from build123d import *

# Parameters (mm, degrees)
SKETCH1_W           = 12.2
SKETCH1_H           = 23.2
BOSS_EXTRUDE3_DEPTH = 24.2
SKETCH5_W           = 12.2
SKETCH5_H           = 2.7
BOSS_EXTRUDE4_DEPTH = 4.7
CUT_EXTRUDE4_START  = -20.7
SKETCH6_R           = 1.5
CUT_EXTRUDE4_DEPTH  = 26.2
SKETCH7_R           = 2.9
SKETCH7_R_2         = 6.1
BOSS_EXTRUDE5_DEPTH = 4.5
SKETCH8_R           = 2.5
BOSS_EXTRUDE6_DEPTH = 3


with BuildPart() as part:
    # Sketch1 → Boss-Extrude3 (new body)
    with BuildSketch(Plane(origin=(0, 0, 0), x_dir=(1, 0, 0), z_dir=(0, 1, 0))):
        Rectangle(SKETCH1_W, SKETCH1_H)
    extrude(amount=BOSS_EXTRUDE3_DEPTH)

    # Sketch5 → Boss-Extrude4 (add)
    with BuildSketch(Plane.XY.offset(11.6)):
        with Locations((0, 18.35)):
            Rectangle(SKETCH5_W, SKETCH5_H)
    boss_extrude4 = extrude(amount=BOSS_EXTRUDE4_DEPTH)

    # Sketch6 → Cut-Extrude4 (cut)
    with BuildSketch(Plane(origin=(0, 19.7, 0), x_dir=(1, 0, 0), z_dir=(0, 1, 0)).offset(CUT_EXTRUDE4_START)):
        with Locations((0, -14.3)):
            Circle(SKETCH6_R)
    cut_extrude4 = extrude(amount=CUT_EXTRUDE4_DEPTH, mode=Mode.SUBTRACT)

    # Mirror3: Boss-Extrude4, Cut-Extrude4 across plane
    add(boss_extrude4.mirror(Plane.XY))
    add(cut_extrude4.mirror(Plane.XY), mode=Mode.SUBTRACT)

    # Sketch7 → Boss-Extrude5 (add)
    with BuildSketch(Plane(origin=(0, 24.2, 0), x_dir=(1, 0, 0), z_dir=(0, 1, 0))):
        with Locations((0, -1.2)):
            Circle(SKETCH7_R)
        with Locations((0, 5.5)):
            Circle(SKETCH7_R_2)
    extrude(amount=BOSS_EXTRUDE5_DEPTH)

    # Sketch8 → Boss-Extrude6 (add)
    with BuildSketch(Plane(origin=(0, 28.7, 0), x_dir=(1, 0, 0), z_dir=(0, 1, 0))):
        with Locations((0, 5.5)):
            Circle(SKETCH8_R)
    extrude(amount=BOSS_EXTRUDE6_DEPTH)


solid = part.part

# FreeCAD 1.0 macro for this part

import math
import FreeCAD as App
import Part
import Sketcher
Q = App.Units.Quantity


def add_polygon(sketch, points):
    """Adds a closed chain of lines whose ends are joined by coincident constraints."""
    first, n = sketch.GeometryCount, len(points)
    for a, b in zip(points, points[1:] + points[:1]):
        sketch.addGeometry(Part.LineSegment(App.Vector(*a, 0), App.Vector(*b, 0)), False)
    for i in range(n):
        sketch.addConstraint(Sketcher.Constraint("Coincident", first + i, 2, first + (i + 1) % n, 1))

doc = App.newDocument("Part")
body = doc.addObject("PartDesign::Body", "Body")

sketch1 = body.newObject("Sketcher::SketchObject", "Sketch")
sketch1.AttachmentSupport = (doc.getObject("XZ_Plane"), [""])
sketch1.MapMode = "FlatFace"
add_polygon(sketch1, [(-6, -12), (-6, 12), (6, 12), (6, -12)])
sketch1.addConstraint([
    Sketcher.Constraint("Vertical", 0),
    Sketcher.Constraint("Horizontal", 1),
    Sketcher.Constraint("Vertical", 2),
    Sketcher.Constraint("Horizontal", 3),
    Sketcher.Constraint("Symmetric", 0, 2, 2, 2, -1, 1),
    Sketcher.Constraint("DistanceX", 1, 1, 1, 2, Q("12.2 mm")),
    Sketcher.Constraint("DistanceY", 0, 1, 0, 2, Q("23.2 mm")),
])
pad1 = body.newObject("PartDesign::Pad", "Pad")
pad1.Profile = sketch1
pad1.Length = 24.2
pad1.Reversed = True

sketch2 = body.newObject("Sketcher::SketchObject", "Sketch001")
sketch2.AttachmentSupport = (doc.getObject("XY_Plane"), [""])
sketch2.MapMode = "FlatFace"
sketch2.AttachmentOffset = App.Placement(App.Vector(0, 0, 11.6), App.Rotation())
add_polygon(sketch2, [(-6.1, 19.7), (-6.1, 17), (6.1, 17), (6.1, 19.7)])
sketch2.addConstraint([
    Sketcher.Constraint("Vertical", 0),
    Sketcher.Constraint("Horizontal", 1),
    Sketcher.Constraint("Vertical", 2),
    Sketcher.Constraint("Horizontal", 3),
    Sketcher.Constraint("DistanceX", 1, 1, 1, 2, Q("12.2 mm")),
    Sketcher.Constraint("DistanceY", 0, 2, 0, 1, Q("2.7 mm")),
    Sketcher.Constraint("DistanceY", -1, 1, 0, 2, Q("17 mm")),
    Sketcher.Constraint("DistanceX", 0, 2, -1, 1, Q("6.1 mm")),
])
pad2 = body.newObject("PartDesign::Pad", "Pad001")
pad2.Profile = sketch2
pad2.Length = 4.7

sketch3 = body.newObject("Sketcher::SketchObject", "Sketch002")
sketch3.AttachmentSupport = (doc.getObject("XZ_Plane"), [""])
sketch3.MapMode = "FlatFace"
sketch3.AttachmentOffset = App.Placement(App.Vector(0, 0, 1), App.Rotation())
sketch3.addGeometry(Part.Circle(App.Vector(0, 14.3, 0), App.Vector(0, 0, 1), 1.5), False)
sketch3.addConstraint([
    Sketcher.Constraint("PointOnObject", 0, 3, -2),
    Sketcher.Constraint("Diameter", 0, Q("3 mm")),
    Sketcher.Constraint("DistanceY", -1, 1, 0, 3, Q("14.3 mm")),
])
pocket1 = body.newObject("PartDesign::Pocket", "Pocket")
pocket1.Profile = sketch3
pocket1.Length = 26.2
doc.recompute()

mirrored = body.newObject("PartDesign::Mirrored", "Mirrored")
mirrored.Originals = [pad2, pocket1]
mirrored.MirrorPlane = (doc.getObject("XY_Plane"), [""])
body.Tip = mirrored

sketch4 = body.newObject("Sketcher::SketchObject", "Sketch003")
sketch4.AttachmentSupport = (doc.getObject("XZ_Plane"), [""])
sketch4.MapMode = "FlatFace"
sketch4.AttachmentOffset = App.Placement(App.Vector(0, 0, -24.2), App.Rotation())
sketch4.addGeometry([
    Part.ArcOfCircle(Part.Circle(App.Vector(0, -5.5, 0), App.Vector(0, 0, 1), 6.1), math.radians(116), math.radians(424)),
    Part.ArcOfCircle(Part.Circle(App.Vector(0, 1.2, 0), App.Vector(0, 0, 1), 2.9), math.radians(-24), math.radians(204)),
], False)
sketch4.addConstraint([
    Sketcher.Constraint("Coincident", 0, 1, 1, 2),
    Sketcher.Constraint("Coincident", 1, 1, 0, 2),
    Sketcher.Constraint("Symmetric", 0, 1, 1, 1, -2),
    Sketcher.Constraint("Radius", 0, Q("6.1 mm")),
    Sketcher.Constraint("Radius", 1, Q("2.9 mm")),
    Sketcher.Constraint("DistanceY", 0, 3, -1, 1, Q("5.5 mm")),
    Sketcher.Constraint("DistanceY", -1, 1, 1, 3, Q("1.2 mm")),
])
pad3 = body.newObject("PartDesign::Pad", "Pad002")
pad3.Profile = sketch4
pad3.Length = 4.5
pad3.Reversed = True

sketch5 = body.newObject("Sketcher::SketchObject", "Sketch004")
sketch5.AttachmentSupport = (doc.getObject("XZ_Plane"), [""])
sketch5.MapMode = "FlatFace"
sketch5.AttachmentOffset = App.Placement(App.Vector(0, 0, -28.7), App.Rotation())
sketch5.addGeometry(Part.Circle(App.Vector(0, -5.5, 0), App.Vector(0, 0, 1), 2.5), False)
sketch5.addConstraint([
    Sketcher.Constraint("PointOnObject", 0, 3, -2),
    Sketcher.Constraint("Diameter", 0, Q("5 mm")),
    Sketcher.Constraint("DistanceY", 0, 3, -1, 1, Q("5.5 mm")),
])
pad4 = body.newObject("PartDesign::Pad", "Pad003")
pad4.Profile = sketch5
pad4.Length = 3
pad4.Reversed = True

doc.recompute()
